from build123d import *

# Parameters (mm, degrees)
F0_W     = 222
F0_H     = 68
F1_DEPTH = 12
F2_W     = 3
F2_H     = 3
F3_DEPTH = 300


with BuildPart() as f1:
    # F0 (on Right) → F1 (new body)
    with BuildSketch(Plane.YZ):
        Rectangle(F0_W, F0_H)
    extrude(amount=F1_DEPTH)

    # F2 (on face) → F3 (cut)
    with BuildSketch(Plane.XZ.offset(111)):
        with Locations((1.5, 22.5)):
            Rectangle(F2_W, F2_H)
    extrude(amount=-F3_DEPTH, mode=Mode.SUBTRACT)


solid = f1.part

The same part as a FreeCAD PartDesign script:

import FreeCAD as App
import Part
import Sketcher

V = App.Vector
Q = App.Units.Quantity

doc = App.newDocument("Part")
params = doc.addObject("Spreadsheet::Sheet", "Params")
for row, (alias, value) in enumerate([
    ("sketch1_width", "222 mm"),
    ("sketch1_height", "68 mm"),
    ("pad1_length", "12 mm"),
    ("sketch2_width", "3 mm"),
    ("pocket1_length", "300 mm"),
], start=1):
    params.set(f"A{row}", alias)
    params.set(f"B{row}", "=" + value)
    params.setAlias(f"B{row}", alias)

body = doc.addObject("PartDesign::Body", "Body")

# Sketch on YZ plane
sketch1 = body.newObject("Sketcher::SketchObject", "Sketch")
sketch1.AttachmentSupport = (doc.getObject("YZ_Plane"), [""])
sketch1.MapMode = "FlatFace"
sketch1.addGeometry([
    Part.LineSegment(V(-111, 34, 0), V(-111, -34, 0)),
    Part.LineSegment(V(-111, -34, 0), V(111, -34, 0)),
    Part.LineSegment(V(111, -34, 0), V(111, 34, 0)),
    Part.LineSegment(V(111, 34, 0), V(-111, 34, 0)),
], False)
sketch1.addConstraint([
    Sketcher.Constraint("Coincident", 0, 2, 1, 1),
    Sketcher.Constraint("Coincident", 1, 2, 2, 1),
    Sketcher.Constraint("Coincident", 2, 2, 3, 1),
    Sketcher.Constraint("Coincident", 3, 2, 0, 1),
    Sketcher.Constraint("Vertical", 0),
    Sketcher.Constraint("Horizontal", 1),
    Sketcher.Constraint("Vertical", 2),
    Sketcher.Constraint("Horizontal", 3),
    Sketcher.Constraint("Symmetric", 0, 2, 2, 2, -1, 1),
    Sketcher.Constraint("DistanceX", 1, 1, 1, 2, Q("222 mm")),
    Sketcher.Constraint("DistanceY", 0, 2, 0, 1, Q("68 mm")),
])
sketch1.setExpression("Constraints[9]", "Params.sketch1_width")
sketch1.setExpression("Constraints[10]", "Params.sketch1_height")
pad1 = body.newObject("PartDesign::Pad", "Pad")
pad1.Profile = sketch1
pad1.setExpression("Length", "Params.pad1_length")

# Sketch on XZ plane
sketch2 = body.newObject("Sketcher::SketchObject", "Sketch001")
sketch2.AttachmentSupport = (doc.getObject("XZ_Plane"), [""])
sketch2.MapMode = "FlatFace"
sketch2.AttachmentOffset = App.Placement(V(0, 0, 111), App.Rotation())
sketch2.addGeometry([
    Part.LineSegment(V(0, 24, 0), V(0, 21, 0)),
    Part.LineSegment(V(0, 21, 0), V(3, 21, 0)),
    Part.LineSegment(V(3, 21, 0), V(3, 24, 0)),
    Part.LineSegment(V(3, 24, 0), V(0, 24, 0)),
], False)
sketch2.addConstraint([
    Sketcher.Constraint("Coincident", 0, 2, 1, 1),
    Sketcher.Constraint("Coincident", 1, 2, 2, 1),
    Sketcher.Constraint("Coincident", 2, 2, 3, 1),
    Sketcher.Constraint("Coincident", 3, 2, 0, 1),
    Sketcher.Constraint("Vertical", 0),
    Sketcher.Constraint("Horizontal", 1),
    Sketcher.Constraint("Vertical", 2),
    Sketcher.Constraint("Horizontal", 3),
    Sketcher.Constraint("PointOnObject", 0, 2, -2),
    Sketcher.Constraint("Equal", 3, 0),
    Sketcher.Constraint("DistanceX", 1, 1, 1, 2, Q("3 mm")),
    Sketcher.Constraint("DistanceY", -1, 1, 0, 2, Q("21 mm")),
])
sketch2.setExpression("Constraints[10]", "Params.sketch2_width")
pocket1 = body.newObject("PartDesign::Pocket", "Pocket")
pocket1.Profile = sketch2
pocket1.setExpression("Length", "Params.pocket1_length")

doc.recompute()
